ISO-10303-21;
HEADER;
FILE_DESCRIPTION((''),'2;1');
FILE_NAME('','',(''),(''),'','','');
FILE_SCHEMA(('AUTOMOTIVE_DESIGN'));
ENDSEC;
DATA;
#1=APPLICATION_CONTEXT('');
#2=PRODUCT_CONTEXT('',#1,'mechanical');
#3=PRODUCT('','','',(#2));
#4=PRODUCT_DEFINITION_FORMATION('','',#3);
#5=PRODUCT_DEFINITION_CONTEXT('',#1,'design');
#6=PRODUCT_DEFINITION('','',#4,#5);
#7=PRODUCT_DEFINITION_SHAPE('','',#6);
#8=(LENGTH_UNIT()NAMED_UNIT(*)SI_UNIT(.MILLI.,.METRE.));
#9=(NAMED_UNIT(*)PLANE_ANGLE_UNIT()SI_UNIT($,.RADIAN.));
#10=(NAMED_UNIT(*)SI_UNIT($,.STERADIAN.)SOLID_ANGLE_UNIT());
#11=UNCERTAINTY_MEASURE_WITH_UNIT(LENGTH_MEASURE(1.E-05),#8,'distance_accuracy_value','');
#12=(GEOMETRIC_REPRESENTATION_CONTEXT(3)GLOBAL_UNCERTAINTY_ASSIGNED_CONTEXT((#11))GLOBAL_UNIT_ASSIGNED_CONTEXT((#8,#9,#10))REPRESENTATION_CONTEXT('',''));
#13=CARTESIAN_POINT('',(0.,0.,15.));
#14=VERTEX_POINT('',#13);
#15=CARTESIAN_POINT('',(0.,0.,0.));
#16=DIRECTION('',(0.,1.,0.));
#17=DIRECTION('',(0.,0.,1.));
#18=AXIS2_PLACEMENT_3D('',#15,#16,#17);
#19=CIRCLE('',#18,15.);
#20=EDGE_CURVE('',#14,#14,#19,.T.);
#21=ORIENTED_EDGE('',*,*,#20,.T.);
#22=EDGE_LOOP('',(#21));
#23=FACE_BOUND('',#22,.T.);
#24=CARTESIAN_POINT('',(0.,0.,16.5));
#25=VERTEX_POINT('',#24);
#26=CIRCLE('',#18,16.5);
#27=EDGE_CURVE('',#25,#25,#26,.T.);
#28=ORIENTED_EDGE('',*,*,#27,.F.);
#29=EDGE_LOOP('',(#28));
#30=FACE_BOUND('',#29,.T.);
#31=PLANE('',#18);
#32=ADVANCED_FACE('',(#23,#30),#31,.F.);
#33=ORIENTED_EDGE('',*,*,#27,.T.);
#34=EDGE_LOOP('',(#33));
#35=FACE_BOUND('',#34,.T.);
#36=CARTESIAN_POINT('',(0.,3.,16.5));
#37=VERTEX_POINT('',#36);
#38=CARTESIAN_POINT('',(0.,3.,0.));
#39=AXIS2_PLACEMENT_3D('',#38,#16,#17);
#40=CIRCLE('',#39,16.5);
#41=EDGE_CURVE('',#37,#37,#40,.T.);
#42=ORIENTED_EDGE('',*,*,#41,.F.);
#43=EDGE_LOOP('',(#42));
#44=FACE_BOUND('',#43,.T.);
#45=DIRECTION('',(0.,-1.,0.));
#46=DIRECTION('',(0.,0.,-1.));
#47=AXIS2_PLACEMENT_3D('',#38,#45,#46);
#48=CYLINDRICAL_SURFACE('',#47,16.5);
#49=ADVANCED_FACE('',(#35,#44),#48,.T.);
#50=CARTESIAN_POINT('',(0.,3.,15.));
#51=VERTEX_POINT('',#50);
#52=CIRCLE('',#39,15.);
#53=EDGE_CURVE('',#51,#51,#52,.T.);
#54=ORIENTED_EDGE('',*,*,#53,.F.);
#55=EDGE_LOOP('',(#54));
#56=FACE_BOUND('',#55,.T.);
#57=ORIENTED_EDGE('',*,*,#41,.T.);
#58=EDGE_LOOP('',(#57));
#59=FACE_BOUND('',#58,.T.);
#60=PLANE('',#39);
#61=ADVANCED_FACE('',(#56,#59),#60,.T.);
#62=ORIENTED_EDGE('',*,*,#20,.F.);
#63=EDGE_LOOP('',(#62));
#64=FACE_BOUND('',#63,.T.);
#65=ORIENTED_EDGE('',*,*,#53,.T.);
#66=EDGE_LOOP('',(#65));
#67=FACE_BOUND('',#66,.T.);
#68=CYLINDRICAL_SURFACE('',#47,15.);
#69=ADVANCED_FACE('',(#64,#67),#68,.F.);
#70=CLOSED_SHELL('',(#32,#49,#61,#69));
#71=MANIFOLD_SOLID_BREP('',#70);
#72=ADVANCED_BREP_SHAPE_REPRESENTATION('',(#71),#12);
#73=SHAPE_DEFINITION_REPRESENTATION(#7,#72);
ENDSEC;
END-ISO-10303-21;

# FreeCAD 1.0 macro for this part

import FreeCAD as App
import Part
import Sketcher
Q = App.Units.Quantity

doc = App.newDocument("Part")
body = doc.addObject("PartDesign::Body", "Body")

sketch1 = body.newObject("Sketcher::SketchObject", "Sketch")
sketch1.AttachmentSupport = (doc.getObject("XZ_Plane"), [""])
sketch1.MapMode = "FlatFace"
sketch1.addGeometry(Part.Circle(App.Vector(0, 0, 0), App.Vector(0, 0, 1), 16), False)
sketch1.addGeometry(Part.Circle(App.Vector(0, 0, 0), App.Vector(0, 0, 1), 15), False)
sketch1.addConstraint(Sketcher.Constraint("Coincident", 0, 3, -1, 1))
sketch1.addConstraint(Sketcher.Constraint("Coincident", 1, 3, -1, 1))
sketch1.addConstraint(Sketcher.Constraint("Diameter", 0, Q("33 mm")))
sketch1.addConstraint(Sketcher.Constraint("Diameter", 1, Q("30 mm")))
pad1 = body.newObject("PartDesign::Pad", "Pad")
pad1.Profile = sketch1
pad1.Length = 3
pad1.Reversed = True

doc.recompute()
